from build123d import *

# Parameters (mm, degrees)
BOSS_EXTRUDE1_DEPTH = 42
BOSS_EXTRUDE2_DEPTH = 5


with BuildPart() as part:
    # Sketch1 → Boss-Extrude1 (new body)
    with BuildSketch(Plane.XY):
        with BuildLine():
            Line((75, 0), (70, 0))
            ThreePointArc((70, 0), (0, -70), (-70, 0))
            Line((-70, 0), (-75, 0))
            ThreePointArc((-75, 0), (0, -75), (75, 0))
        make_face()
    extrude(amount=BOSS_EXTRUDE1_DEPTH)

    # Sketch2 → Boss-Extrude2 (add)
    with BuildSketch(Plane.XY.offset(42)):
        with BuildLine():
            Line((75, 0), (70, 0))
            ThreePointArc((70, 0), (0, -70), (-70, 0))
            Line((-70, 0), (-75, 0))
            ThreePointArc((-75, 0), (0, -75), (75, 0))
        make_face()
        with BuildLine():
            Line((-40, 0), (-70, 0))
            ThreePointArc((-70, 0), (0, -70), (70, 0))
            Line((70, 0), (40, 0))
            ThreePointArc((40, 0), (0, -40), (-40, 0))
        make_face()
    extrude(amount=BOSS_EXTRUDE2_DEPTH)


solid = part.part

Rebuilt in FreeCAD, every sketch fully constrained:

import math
import FreeCAD as App
import Part
import Sketcher
from FreeCAD import Vector

doc = App.newDocument("Part")
body = doc.addObject("PartDesign::Body", "Body")

sketch1 = body.newObject("Sketcher::SketchObject", "Sketch")
sketch1.AttachmentSupport = (doc.getObject("XY_Plane"), [""])
sketch1.MapMode = "FlatFace"
sketch1.addGeometry([
    Part.LineSegment(Vector(75, 0, 0), Vector(70, 0, 0)),
    Part.ArcOfCircle(Part.Circle(Vector(0, 0, 0), Vector(0, 0, 1), 70), math.radians(180), math.radians(360)),
    Part.LineSegment(Vector(-70, 0, 0), Vector(-75, 0, 0)),
    Part.ArcOfCircle(Part.Circle(Vector(0, 0, 0), Vector(0, 0, 1), 75), math.radians(180), math.radians(360)),
], False)
sketch1.addConstraint([
    Sketcher.Constraint("Coincident", 0, 2, 1, 2),
    Sketcher.Constraint("Coincident", 1, 1, 2, 1),
    Sketcher.Constraint("Coincident", 2, 2, 3, 1),
    Sketcher.Constraint("Coincident", 3, 2, 0, 1),
    Sketcher.Constraint("Horizontal", 0),
    Sketcher.Constraint("Horizontal", 2),
    Sketcher.Constraint("Coincident", 1, 3, -1, 1),
    Sketcher.Constraint("Coincident", 3, 3, -1, 1),
    Sketcher.Constraint("PointOnObject", 0, 2, -1),
    Sketcher.Constraint("PointOnObject", 1, 1, -1),
    Sketcher.Constraint("Radius", 1, 70.0),
    Sketcher.Constraint("Radius", 3, 75.0),
])
pad1 = body.newObject("PartDesign::Pad", "Pad")
pad1.Profile = sketch1
pad1.Length = 42

sketch2 = body.newObject("Sketcher::SketchObject", "Sketch001")
sketch2.AttachmentSupport = (doc.getObject("XY_Plane"), [""])
sketch2.MapMode = "FlatFace"
sketch2.AttachmentOffset = App.Placement(Vector(0, 0, 42), App.Rotation())
sketch2.addGeometry([
    Part.LineSegment(Vector(75, 0, 0), Vector(40, 0, 0)),
    Part.ArcOfCircle(Part.Circle(Vector(0, 0, 0), Vector(0, 0, 1), 40), math.radians(180), math.radians(360)),
    Part.LineSegment(Vector(-40, 0, 0), Vector(-75, 0, 0)),
    Part.ArcOfCircle(Part.Circle(Vector(0, 0, 0), Vector(0, 0, 1), 75), math.radians(180), math.radians(360)),
], False)
sketch2.addConstraint([
    Sketcher.Constraint("Coincident", 0, 2, 1, 2),
    Sketcher.Constraint("Coincident", 1, 1, 2, 1),
    Sketcher.Constraint("Coincident", 2, 2, 3, 1),
    Sketcher.Constraint("Coincident", 3, 2, 0, 1),
    Sketcher.Constraint("Horizontal", 0),
    Sketcher.Constraint("Horizontal", 2),
    Sketcher.Constraint("Coincident", 1, 3, -1, 1),
    Sketcher.Constraint("Coincident", 3, 3, -1, 1),
    Sketcher.Constraint("PointOnObject", 0, 2, -1),
    Sketcher.Constraint("PointOnObject", 1, 1, -1),
    Sketcher.Constraint("Radius", 1, 40.0),
    Sketcher.Constraint("Radius", 3, 75.0),
])
pad2 = body.newObject("PartDesign::Pad", "Pad001")
pad2.Profile = sketch2
pad2.Length = 5

doc.recompute()
